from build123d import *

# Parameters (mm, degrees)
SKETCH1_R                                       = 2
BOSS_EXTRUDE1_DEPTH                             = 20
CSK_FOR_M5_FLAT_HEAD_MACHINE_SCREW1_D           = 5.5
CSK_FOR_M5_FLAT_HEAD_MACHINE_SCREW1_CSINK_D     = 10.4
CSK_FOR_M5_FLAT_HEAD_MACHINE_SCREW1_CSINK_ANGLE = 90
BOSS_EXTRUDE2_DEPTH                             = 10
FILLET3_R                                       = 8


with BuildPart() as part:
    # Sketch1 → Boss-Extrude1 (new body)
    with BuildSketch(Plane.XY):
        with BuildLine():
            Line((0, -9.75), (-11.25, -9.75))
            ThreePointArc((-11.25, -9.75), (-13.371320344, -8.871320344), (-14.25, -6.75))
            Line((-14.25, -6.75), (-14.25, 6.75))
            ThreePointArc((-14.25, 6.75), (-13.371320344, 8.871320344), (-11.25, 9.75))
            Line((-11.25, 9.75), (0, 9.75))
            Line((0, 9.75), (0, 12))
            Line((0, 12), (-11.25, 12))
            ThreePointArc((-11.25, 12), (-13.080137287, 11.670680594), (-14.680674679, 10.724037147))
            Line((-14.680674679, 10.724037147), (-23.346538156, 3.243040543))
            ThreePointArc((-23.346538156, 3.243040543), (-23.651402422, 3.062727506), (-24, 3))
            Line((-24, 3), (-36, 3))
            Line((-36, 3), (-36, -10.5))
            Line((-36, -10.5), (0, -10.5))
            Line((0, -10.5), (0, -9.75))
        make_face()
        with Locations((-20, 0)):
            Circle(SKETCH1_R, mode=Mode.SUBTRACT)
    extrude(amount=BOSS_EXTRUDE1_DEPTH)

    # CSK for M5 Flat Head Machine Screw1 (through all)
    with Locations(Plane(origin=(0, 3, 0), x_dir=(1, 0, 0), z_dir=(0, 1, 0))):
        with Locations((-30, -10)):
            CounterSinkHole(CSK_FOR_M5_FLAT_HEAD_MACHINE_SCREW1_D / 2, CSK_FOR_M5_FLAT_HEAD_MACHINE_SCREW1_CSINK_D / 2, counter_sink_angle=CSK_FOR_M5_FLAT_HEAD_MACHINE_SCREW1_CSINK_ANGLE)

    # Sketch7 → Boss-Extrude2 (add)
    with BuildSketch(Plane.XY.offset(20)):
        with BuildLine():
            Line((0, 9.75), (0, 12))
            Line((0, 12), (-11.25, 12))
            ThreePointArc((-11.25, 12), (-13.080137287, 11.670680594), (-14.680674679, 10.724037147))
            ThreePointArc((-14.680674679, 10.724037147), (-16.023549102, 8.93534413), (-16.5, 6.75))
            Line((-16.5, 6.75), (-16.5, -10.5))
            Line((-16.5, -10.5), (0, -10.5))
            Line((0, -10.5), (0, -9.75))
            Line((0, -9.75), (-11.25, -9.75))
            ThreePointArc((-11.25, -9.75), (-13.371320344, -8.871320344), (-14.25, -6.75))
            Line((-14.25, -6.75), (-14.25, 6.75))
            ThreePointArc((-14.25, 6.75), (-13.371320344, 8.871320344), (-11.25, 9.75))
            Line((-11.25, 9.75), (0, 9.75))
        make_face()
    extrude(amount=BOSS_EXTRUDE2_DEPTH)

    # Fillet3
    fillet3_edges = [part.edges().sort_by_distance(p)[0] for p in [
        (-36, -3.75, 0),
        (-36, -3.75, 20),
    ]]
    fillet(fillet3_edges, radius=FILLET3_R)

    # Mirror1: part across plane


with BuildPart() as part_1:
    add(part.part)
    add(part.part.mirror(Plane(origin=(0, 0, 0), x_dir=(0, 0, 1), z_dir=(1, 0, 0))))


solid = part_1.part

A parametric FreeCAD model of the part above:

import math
import FreeCAD as App
import Part
import Sketcher

V = App.Vector
Q = App.Units.Quantity


def edges_at(feature, points):
    """Names of the edges that pass closest to the given points."""
    edges = feature.Shape.Edges
    near = lambda p: min(range(len(edges)), key=lambda i: edges[i].distToShape(Part.Vertex(*p))[0])
    return sorted({f"Edge{near(p) + 1}" for p in points})

doc = App.newDocument("Part")
body = doc.addObject("PartDesign::Body", "Body")

# Sketch on XY plane
sketch1 = body.newObject("Sketcher::SketchObject", "Sketch")
sketch1.AttachmentSupport = (doc.getObject("XY_Plane"), [""])
sketch1.MapMode = "FlatFace"
sketch1.addGeometry(Part.LineSegment(V(0, -9.8, 0), V(-11.2, -9.8, 0)), False)
sketch1.addGeometry(Part.ArcOfCircle(Part.Circle(V(-11.3, -6.8, 0), V(0, 0, 1), 3), math.radians(180), math.radians(270)), False)
sketch1.addGeometry(Part.LineSegment(V(-14.2, -6.8, 0), V(-14.2, 6.8, 0)), False)
sketch1.addGeometry(Part.ArcOfCircle(Part.Circle(V(-11.3, 6.8, 0), V(0, 0, 1), 3), math.radians(90), math.radians(180)), False)
sketch1.addGeometry(Part.LineSegment(V(-11.2, 9.8, 0), V(0, 9.8, 0)), False)
sketch1.addGeometry(Part.LineSegment(V(0, 9.8, 0), V(0, 12, 0)), False)
sketch1.addGeometry(Part.LineSegment(V(0, 12, 0), V(-11.2, 12, 0)), False)
sketch1.addGeometry(Part.ArcOfCircle(Part.Circle(V(-11.2, 6.7, 0), V(0, 0, 1), 5.3), math.radians(90), math.radians(131)), False)
sketch1.addGeometry(Part.LineSegment(V(-14.7, 10.7, 0), V(-23.3, 3.2, 0)), False)
sketch1.addGeometry(Part.ArcOfCircle(Part.Circle(V(-24, 4, 0), V(0, 0, 1), 1), math.radians(-90), math.radians(-49)), False)
sketch1.addGeometry(Part.LineSegment(V(-24, 3, 0), V(-36, 3, 0)), False)
sketch1.addGeometry(Part.LineSegment(V(-36, 3, 0), V(-36, -10.5, 0)), False)
sketch1.addGeometry(Part.LineSegment(V(-36, -10.5, 0), V(0, -10.5, 0)), False)
sketch1.addGeometry(Part.LineSegment(V(0, -10.5, 0), V(0, -9.8, 0)), False)
sketch1.addGeometry(Part.Circle(V(-20, 0, 0), V(0, 0, 1), 2), False)
sketch1.addConstraint(Sketcher.Constraint("Tangent", 0, 2, 1, 2))
sketch1.addConstraint(Sketcher.Constraint("Tangent", 1, 1, 2, 1))
sketch1.addConstraint(Sketcher.Constraint("Tangent", 2, 2, 3, 2))
sketch1.addConstraint(Sketcher.Constraint("Tangent", 3, 1, 4, 1))
sketch1.addConstraint(Sketcher.Constraint("Coincident", 4, 2, 5, 1))
sketch1.addConstraint(Sketcher.Constraint("Coincident", 5, 2, 6, 1))
sketch1.addConstraint(Sketcher.Constraint("Tangent", 6, 2, 7, 1))
sketch1.addConstraint(Sketcher.Constraint("Tangent", 7, 2, 8, 1))
sketch1.addConstraint(Sketcher.Constraint("Tangent", 8, 2, 9, 2))
sketch1.addConstraint(Sketcher.Constraint("Tangent", 9, 1, 10, 1))
sketch1.addConstraint(Sketcher.Constraint("Coincident", 10, 2, 11, 1))
sketch1.addConstraint(Sketcher.Constraint("Coincident", 11, 2, 12, 1))
sketch1.addConstraint(Sketcher.Constraint("Coincident", 12, 2, 13, 1))
sketch1.addConstraint(Sketcher.Constraint("Coincident", 13, 2, 0, 1))
sketch1.addConstraint(Sketcher.Constraint("Horizontal", 0))
sketch1.addConstraint(Sketcher.Constraint("Vertical", 2))
sketch1.addConstraint(Sketcher.Constraint("Horizontal", 4))
sketch1.addConstraint(Sketcher.Constraint("Vertical", 5))
sketch1.addConstraint(Sketcher.Constraint("Horizontal", 6))
sketch1.addConstraint(Sketcher.Constraint("Horizontal", 10))
sketch1.addConstraint(Sketcher.Constraint("Vertical", 11))
sketch1.addConstraint(Sketcher.Constraint("Horizontal", 12))
sketch1.addConstraint(Sketcher.Constraint("Vertical", 13))
sketch1.addConstraint(Sketcher.Constraint("Coincident", 7, 3, 3, 3))
sketch1.addConstraint(Sketcher.Constraint("Equal", 1, 3))
sketch1.addConstraint(Sketcher.Constraint("Symmetric", 4, 2, 13, 2, -1, 1))
sketch1.addConstraint(Sketcher.Constraint("PointOnObject", 14, 3, -1))
sketch1.addConstraint(Sketcher.Constraint("PointOnObject", 4, 2, -2))
sketch1.addConstraint(Sketcher.Constraint("Equal", 2, 11))
sketch1.addConstraint(Sketcher.Constraint("Diameter", 14, Q("4 mm")))
sketch1.addConstraint(Sketcher.Constraint("Radius", 1, Q("3 mm")))
sketch1.addConstraint(Sketcher.Constraint("Radius", 9, Q("1 mm")))
sketch1.addConstraint(Sketcher.Constraint("DistanceX", 10, 2, 10, 1, Q("12 mm")))
sketch1.addConstraint(Sketcher.Constraint("DistanceX", 12, 1, 12, 2, Q("36 mm")))
sketch1.addConstraint(Sketcher.Constraint("Radius", 7, Q("5.25 mm")))
sketch1.addConstraint(Sketcher.Constraint("DistanceY", 2, 1, 2, 2, Q("13.5 mm")))
sketch1.addConstraint(Sketcher.Constraint("DistanceY", -1, 1, 9, 3, Q("4 mm")))
sketch1.addConstraint(Sketcher.Constraint("DistanceX", 14, 3, -1, 1, Q("20 mm")))
sketch1.addConstraint(Sketcher.Constraint("DistanceX", 0, 2, 0, 1, Q("11.25 mm")))
pad1 = body.newObject("PartDesign::Pad", "Pad")
pad1.Profile = sketch1
pad1.Length = 20

# Sketch on XZ plane
sketch2 = body.newObject("Sketcher::SketchObject", "Sketch001")
sketch2.AttachmentSupport = (doc.getObject("XZ_Plane"), [""])
sketch2.MapMode = "FlatFace"
sketch2.AttachmentOffset = App.Placement(V(0, 0, -3), App.Rotation())
sketch2.addGeometry(Part.Circle(V(-30, 10, 0), V(0, 0, 1), 2.8), False)
sketch2.addConstraint(Sketcher.Constraint("Diameter", 0, Q("5.5 mm")))
sketch2.addConstraint(Sketcher.Constraint("DistanceX", 0, 3, -1, 1, Q("30 mm")))
sketch2.addConstraint(Sketcher.Constraint("DistanceY", -1, 1, 0, 3, Q("10 mm")))
doc.recompute()
hole = body.newObject("PartDesign::Hole", "Hole")
hole.Profile = sketch2
hole.ThreadType = "None"
hole.Diameter = 5.5
hole.DepthType = "ThroughAll"
hole.HoleCutType = "Countersink"
hole.HoleCutDiameter = 10.4
hole.HoleCutCountersinkAngle = 90
hole.Reversed = True

# Sketch on XY plane
sketch3 = body.newObject("Sketcher::SketchObject", "Sketch002")
sketch3.AttachmentSupport = (doc.getObject("XY_Plane"), [""])
sketch3.MapMode = "FlatFace"
sketch3.AttachmentOffset = App.Placement(V(0, 0, 20), App.Rotation())
sketch3.addGeometry(Part.LineSegment(V(0, 9.8, 0), V(0, 12, 0)), False)
sketch3.addGeometry(Part.LineSegment(V(0, 12, 0), V(-11.2, 12, 0)), False)
sketch3.addGeometry(Part.ArcOfCircle(Part.Circle(V(-11.2, 6.7, 0), V(0, 0, 1), 5.3), math.radians(90), math.radians(131)), False)
sketch3.addGeometry(Part.ArcOfCircle(Part.Circle(V(-11.2, 6.7, 0), V(0, 0, 1), 5.3), math.radians(131), math.radians(180)), False)
sketch3.addGeometry(Part.LineSegment(V(-16.5, 6.8, 0), V(-16.5, -10.5, 0)), False)
sketch3.addGeometry(Part.LineSegment(V(-16.5, -10.5, 0), V(0, -10.5, 0)), False)
sketch3.addGeometry(Part.LineSegment(V(0, -10.5, 0), V(0, -9.8, 0)), False)
sketch3.addGeometry(Part.LineSegment(V(0, -9.8, 0), V(-11.2, -9.8, 0)), False)
sketch3.addGeometry(Part.ArcOfCircle(Part.Circle(V(-11.3, -6.8, 0), V(0, 0, 1), 3), math.radians(180), math.radians(270)), False)
sketch3.addGeometry(Part.LineSegment(V(-14.2, -6.8, 0), V(-14.2, 6.8, 0)), False)
sketch3.addGeometry(Part.ArcOfCircle(Part.Circle(V(-11.3, 6.8, 0), V(0, 0, 1), 3), math.radians(90), math.radians(180)), False)
sketch3.addGeometry(Part.LineSegment(V(-11.2, 9.8, 0), V(0, 9.8, 0)), False)
sketch3.addConstraint(Sketcher.Constraint("Coincident", 0, 2, 1, 1))
sketch3.addConstraint(Sketcher.Constraint("Tangent", 1, 2, 2, 1))
sketch3.addConstraint(Sketcher.Constraint("Tangent", 2, 2, 3, 1))
sketch3.addConstraint(Sketcher.Constraint("Tangent", 3, 2, 4, 1))
sketch3.addConstraint(Sketcher.Constraint("Coincident", 4, 2, 5, 1))
sketch3.addConstraint(Sketcher.Constraint("Coincident", 5, 2, 6, 1))
sketch3.addConstraint(Sketcher.Constraint("Coincident", 6, 2, 7, 1))
sketch3.addConstraint(Sketcher.Constraint("Tangent", 7, 2, 8, 2))
sketch3.addConstraint(Sketcher.Constraint("Tangent", 8, 1, 9, 1))
sketch3.addConstraint(Sketcher.Constraint("Tangent", 9, 2, 10, 2))
sketch3.addConstraint(Sketcher.Constraint("Tangent", 10, 1, 11, 1))
sketch3.addConstraint(Sketcher.Constraint("Coincident", 11, 2, 0, 1))
sketch3.addConstraint(Sketcher.Constraint("Vertical", 0))
sketch3.addConstraint(Sketcher.Constraint("Horizontal", 1))
sketch3.addConstraint(Sketcher.Constraint("Vertical", 4))
sketch3.addConstraint(Sketcher.Constraint("Horizontal", 5))
sketch3.addConstraint(Sketcher.Constraint("Vertical", 6))
sketch3.addConstraint(Sketcher.Constraint("Horizontal", 7))
sketch3.addConstraint(Sketcher.Constraint("Vertical", 9))
sketch3.addConstraint(Sketcher.Constraint("Horizontal", 11))
sketch3.addConstraint(Sketcher.Constraint("Coincident", 10, 3, 2, 3))
sketch3.addConstraint(Sketcher.Constraint("Equal", 2, 3))
sketch3.addConstraint(Sketcher.Constraint("Equal", 8, 10))
sketch3.addConstraint(Sketcher.Constraint("Symmetric", 6, 2, 11, 2, -1, 1))
sketch3.addConstraint(Sketcher.Constraint("PointOnObject", 0, 2, -2))
sketch3.addConstraint(Sketcher.Constraint("Radius", 8, Q("3 mm")))
sketch3.addConstraint(Sketcher.Constraint("Radius", 2, Q("5.25 mm")))
sketch3.addConstraint(Sketcher.Constraint("DistanceX", 5, 1, 5, 2, Q("16.5 mm")))
sketch3.addConstraint(Sketcher.Constraint("DistanceY", 9, 1, 9, 2, Q("13.5 mm")))
sketch3.addConstraint(Sketcher.Constraint("DistanceY", 4, 2, 4, 1, Q("17.25 mm")))
sketch3.addConstraint(Sketcher.Constraint("DistanceX", 2, 2, -1, 1, Q("14.680675 mm")))
pad2 = body.newObject("PartDesign::Pad", "Pad001")
pad2.Profile = sketch3
pad2.Length = 10
doc.recompute()

fillet = body.newObject("PartDesign::Fillet", "Fillet")
fillet.Base = (pad2, edges_at(pad2, [(-36, -3.75, 0), (-36, -3.75, 20)]))
fillet.Radius = 8
body2 = doc.addObject("PartDesign::Body", "Body001")
doc.recompute()

body2.BaseFeature = body
doc.recompute()

mirroring = doc.addObject("Part::Mirroring", "Mirroring")
mirroring.Source = body
mirroring.Base = V(0, 0, 0)
mirroring.Normal = V(1, 0, 0)
body3 = doc.addObject("PartDesign::Body", "Body002")
body3.BaseFeature = mirroring
boolean = body2.newObject("PartDesign::Boolean", "Boolean")
boolean.Type = "Fuse"
boolean.addObjects([body3])
doc.recompute()
mirroring.Visibility = False

doc.recompute()
